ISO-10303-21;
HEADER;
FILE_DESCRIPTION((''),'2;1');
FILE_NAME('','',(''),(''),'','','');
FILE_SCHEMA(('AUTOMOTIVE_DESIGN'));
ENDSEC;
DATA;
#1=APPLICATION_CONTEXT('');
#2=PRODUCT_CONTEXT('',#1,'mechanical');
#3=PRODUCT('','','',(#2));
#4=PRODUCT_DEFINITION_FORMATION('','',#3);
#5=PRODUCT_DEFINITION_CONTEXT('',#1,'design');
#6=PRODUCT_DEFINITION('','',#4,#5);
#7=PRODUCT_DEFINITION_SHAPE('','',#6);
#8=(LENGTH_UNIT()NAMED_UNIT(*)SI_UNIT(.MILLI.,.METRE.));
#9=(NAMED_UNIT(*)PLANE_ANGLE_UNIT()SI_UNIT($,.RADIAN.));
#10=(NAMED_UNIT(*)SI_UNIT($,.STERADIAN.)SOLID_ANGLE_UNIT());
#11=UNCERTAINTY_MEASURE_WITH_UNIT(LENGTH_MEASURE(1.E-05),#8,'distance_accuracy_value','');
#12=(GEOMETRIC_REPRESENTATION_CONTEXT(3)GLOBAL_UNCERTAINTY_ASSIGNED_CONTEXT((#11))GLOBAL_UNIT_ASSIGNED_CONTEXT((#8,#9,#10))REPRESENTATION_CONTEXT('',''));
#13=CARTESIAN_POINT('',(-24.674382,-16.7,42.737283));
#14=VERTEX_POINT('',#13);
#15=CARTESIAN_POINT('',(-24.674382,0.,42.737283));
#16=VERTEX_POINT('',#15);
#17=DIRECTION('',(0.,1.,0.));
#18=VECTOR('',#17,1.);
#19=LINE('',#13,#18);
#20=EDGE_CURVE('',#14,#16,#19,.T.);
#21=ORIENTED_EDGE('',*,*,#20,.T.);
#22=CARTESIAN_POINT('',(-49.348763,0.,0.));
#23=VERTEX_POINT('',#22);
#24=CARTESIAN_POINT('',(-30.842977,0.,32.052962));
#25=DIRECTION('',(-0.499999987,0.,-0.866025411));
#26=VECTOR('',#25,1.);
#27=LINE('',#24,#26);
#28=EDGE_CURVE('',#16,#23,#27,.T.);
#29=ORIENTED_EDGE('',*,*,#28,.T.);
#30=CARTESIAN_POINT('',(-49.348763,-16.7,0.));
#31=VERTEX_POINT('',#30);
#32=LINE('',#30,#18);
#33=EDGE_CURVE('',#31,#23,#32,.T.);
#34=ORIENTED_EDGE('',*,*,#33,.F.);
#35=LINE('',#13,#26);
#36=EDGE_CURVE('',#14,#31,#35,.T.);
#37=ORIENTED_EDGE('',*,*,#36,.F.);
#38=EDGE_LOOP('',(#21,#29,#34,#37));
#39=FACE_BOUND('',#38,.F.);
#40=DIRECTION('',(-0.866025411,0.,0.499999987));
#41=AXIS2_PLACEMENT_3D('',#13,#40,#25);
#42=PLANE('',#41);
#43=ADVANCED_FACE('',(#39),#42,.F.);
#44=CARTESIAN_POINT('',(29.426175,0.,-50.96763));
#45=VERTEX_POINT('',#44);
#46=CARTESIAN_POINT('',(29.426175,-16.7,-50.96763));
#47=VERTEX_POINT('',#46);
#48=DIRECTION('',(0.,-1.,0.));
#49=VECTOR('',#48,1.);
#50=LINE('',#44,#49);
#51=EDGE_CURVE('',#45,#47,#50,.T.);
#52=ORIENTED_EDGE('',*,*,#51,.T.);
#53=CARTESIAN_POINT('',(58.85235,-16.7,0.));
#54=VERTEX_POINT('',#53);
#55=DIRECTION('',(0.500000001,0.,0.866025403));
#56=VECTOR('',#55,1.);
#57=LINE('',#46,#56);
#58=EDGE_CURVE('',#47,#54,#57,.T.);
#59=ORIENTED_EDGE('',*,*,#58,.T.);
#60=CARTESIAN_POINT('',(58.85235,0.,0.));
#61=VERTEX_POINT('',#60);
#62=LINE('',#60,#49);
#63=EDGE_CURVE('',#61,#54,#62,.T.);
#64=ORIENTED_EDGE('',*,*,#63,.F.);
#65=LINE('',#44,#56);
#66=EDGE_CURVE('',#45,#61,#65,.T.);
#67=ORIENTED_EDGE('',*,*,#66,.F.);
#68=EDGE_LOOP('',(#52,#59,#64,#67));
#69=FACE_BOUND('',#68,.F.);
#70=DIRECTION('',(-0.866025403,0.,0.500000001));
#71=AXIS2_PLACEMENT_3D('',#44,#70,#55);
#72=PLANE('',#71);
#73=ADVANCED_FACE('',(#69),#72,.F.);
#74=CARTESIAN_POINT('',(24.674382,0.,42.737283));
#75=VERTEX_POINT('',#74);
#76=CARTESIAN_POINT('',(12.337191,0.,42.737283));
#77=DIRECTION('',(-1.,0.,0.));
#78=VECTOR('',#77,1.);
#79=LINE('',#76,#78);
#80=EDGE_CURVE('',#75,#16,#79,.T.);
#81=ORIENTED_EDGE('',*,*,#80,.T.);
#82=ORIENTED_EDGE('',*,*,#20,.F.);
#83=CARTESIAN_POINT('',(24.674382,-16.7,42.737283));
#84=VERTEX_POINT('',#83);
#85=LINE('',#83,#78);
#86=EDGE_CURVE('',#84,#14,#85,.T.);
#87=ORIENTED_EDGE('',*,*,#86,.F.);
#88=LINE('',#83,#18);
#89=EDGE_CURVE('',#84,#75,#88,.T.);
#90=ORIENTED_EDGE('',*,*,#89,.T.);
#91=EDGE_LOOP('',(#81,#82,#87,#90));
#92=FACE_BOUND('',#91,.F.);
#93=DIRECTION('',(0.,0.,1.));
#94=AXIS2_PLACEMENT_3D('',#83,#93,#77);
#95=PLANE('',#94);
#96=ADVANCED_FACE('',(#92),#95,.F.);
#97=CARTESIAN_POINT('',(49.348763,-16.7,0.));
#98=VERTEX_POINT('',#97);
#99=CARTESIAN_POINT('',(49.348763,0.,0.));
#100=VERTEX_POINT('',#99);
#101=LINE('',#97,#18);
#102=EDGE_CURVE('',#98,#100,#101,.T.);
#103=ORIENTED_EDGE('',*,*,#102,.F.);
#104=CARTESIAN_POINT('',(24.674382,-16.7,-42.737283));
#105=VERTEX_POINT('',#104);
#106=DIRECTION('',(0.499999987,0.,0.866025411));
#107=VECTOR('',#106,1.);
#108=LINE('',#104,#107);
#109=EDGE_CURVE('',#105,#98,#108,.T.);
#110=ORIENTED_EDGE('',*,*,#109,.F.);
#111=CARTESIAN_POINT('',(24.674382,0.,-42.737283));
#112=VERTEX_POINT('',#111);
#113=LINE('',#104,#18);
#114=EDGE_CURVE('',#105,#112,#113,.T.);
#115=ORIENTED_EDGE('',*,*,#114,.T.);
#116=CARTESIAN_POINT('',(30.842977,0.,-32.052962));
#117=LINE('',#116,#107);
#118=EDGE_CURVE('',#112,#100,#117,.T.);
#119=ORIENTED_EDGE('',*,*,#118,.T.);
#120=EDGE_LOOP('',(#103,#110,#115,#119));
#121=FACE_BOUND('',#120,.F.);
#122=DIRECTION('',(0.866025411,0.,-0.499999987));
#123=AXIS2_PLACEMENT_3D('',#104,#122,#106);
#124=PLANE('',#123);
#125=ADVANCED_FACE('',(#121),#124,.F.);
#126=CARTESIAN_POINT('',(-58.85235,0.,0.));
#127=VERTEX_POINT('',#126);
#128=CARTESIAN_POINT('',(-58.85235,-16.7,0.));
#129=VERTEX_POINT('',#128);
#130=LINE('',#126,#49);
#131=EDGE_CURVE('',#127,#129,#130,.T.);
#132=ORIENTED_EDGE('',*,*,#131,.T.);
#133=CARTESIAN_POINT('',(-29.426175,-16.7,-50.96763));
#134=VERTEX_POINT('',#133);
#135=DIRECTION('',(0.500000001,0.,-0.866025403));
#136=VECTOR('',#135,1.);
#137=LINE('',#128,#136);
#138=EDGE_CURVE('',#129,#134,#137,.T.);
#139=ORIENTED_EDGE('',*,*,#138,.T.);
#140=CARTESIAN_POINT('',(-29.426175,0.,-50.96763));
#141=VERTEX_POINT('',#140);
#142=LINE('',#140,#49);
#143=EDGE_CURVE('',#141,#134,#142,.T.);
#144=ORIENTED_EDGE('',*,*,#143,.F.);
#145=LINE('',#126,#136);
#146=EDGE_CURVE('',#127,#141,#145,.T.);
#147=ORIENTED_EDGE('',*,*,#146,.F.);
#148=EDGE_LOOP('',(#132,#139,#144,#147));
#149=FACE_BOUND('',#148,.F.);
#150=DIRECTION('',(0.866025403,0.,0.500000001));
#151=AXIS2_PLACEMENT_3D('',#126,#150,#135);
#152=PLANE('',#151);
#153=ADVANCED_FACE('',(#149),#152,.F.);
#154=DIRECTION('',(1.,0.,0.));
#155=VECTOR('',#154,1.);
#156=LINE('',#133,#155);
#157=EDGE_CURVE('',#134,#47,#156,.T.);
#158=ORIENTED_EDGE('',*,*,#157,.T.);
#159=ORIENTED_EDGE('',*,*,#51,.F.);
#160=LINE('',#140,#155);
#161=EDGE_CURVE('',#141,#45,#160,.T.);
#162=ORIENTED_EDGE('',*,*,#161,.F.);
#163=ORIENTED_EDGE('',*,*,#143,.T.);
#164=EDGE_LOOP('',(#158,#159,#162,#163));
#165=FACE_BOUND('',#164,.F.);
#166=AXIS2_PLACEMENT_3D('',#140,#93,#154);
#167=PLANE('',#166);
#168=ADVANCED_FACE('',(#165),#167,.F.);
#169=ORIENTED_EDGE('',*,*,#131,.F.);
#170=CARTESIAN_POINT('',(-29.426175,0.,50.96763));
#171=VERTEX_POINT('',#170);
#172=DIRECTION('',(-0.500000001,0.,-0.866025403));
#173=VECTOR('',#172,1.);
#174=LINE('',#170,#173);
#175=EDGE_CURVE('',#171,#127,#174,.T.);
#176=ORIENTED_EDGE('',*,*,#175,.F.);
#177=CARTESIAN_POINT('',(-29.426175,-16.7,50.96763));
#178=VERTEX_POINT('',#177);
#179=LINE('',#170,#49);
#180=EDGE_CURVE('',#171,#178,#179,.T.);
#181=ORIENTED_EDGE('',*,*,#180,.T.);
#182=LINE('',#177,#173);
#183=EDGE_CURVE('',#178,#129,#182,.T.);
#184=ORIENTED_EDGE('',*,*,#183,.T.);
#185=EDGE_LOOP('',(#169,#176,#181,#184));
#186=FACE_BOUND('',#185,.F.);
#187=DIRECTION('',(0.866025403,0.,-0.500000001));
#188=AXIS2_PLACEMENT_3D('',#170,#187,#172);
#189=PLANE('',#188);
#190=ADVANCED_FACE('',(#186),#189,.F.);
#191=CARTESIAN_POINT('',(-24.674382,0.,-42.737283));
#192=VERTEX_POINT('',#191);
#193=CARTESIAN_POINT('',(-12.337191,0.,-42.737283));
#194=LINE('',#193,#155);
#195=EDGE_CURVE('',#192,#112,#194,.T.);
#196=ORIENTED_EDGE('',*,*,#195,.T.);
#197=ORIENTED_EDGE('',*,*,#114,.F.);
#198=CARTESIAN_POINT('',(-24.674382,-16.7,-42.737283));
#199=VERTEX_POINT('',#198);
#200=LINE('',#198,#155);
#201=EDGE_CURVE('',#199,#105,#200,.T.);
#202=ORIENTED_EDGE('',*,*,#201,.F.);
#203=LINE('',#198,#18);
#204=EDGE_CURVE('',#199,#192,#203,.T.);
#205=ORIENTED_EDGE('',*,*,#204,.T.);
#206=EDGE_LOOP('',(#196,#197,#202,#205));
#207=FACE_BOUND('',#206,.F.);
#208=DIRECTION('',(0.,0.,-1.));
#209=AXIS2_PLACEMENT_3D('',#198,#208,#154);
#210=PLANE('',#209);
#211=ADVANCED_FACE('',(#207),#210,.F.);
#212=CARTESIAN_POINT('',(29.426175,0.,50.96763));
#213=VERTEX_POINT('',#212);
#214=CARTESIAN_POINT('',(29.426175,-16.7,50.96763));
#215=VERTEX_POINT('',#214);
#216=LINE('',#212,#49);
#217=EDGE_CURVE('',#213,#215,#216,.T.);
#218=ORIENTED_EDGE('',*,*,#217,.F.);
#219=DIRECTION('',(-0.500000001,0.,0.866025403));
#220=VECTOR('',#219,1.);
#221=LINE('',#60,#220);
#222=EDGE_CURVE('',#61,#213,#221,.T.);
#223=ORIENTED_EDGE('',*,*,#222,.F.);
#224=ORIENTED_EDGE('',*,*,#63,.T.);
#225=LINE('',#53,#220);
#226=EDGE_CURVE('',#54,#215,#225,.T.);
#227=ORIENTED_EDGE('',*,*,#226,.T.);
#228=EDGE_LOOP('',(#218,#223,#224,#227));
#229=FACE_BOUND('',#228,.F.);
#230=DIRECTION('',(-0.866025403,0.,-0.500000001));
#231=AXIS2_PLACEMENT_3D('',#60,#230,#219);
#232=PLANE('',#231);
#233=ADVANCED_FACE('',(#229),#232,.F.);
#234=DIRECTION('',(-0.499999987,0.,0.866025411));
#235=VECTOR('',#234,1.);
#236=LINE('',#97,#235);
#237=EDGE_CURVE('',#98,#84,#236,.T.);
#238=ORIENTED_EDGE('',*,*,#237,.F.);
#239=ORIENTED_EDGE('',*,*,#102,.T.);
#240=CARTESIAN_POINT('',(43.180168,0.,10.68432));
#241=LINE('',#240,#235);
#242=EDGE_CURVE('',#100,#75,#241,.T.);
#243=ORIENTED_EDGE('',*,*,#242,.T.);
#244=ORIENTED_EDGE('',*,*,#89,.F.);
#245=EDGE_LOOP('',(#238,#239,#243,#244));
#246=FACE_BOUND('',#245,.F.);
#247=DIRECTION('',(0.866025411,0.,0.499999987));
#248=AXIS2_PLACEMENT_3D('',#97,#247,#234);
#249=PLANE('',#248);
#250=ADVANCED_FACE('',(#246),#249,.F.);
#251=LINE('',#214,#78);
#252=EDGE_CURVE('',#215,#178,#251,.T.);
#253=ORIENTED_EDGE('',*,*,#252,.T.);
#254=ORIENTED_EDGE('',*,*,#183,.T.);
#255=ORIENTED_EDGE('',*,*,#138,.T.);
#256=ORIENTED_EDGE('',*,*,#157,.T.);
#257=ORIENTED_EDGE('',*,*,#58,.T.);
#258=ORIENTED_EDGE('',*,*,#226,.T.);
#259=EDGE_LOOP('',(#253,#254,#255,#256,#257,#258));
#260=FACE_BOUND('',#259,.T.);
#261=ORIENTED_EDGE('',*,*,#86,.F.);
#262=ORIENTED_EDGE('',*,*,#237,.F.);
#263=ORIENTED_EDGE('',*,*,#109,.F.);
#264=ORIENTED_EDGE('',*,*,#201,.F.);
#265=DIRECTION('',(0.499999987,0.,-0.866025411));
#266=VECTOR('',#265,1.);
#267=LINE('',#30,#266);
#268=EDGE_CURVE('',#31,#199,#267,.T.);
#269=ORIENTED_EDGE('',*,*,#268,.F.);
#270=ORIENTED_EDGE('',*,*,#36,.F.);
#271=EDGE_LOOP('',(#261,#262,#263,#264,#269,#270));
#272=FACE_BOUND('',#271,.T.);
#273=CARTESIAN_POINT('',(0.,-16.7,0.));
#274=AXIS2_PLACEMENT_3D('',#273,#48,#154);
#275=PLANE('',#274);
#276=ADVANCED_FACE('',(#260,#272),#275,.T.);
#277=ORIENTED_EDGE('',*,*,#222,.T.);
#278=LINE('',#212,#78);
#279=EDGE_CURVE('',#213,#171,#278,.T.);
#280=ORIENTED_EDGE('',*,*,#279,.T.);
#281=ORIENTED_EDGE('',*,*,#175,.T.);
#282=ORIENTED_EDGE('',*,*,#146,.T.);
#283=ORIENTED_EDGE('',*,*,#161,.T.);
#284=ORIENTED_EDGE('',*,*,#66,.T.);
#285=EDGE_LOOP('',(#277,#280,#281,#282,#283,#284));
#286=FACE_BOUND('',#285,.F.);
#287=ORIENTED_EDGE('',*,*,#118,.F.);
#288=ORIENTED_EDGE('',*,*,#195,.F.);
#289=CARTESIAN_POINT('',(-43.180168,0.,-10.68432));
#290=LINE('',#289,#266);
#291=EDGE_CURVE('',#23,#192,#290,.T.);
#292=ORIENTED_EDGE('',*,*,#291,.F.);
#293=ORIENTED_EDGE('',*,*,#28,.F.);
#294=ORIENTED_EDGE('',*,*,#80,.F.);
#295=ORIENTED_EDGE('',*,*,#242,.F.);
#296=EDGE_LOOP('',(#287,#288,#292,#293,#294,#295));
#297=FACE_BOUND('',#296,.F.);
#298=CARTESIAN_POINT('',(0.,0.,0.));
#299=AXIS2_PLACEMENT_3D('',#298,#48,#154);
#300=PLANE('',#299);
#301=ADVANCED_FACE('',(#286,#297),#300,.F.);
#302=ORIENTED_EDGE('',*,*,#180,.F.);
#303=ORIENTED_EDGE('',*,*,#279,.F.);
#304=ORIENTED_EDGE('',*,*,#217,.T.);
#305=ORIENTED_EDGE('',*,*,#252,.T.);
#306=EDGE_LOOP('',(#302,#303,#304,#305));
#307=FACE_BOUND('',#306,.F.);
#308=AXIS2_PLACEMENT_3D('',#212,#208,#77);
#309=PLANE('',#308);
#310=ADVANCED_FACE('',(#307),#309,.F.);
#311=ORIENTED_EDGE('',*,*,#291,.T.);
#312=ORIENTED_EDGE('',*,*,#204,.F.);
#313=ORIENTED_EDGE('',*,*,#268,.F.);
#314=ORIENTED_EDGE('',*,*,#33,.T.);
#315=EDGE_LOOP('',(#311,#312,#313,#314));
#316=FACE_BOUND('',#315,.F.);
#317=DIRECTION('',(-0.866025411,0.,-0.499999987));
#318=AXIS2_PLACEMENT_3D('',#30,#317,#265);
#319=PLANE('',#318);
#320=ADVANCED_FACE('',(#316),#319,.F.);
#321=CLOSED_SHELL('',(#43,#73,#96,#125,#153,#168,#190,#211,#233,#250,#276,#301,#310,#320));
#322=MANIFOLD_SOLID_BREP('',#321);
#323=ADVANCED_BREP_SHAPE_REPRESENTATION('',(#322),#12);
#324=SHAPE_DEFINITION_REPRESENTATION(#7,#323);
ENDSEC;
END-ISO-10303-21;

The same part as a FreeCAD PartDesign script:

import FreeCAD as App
import Part
import Sketcher
Q = App.Units.Quantity


def add_polygon(sketch, points):
    """Adds a closed chain of lines whose ends are joined by coincident constraints."""
    first, n = sketch.GeometryCount, len(points)
    for a, b in zip(points, points[1:] + points[:1]):
        sketch.addGeometry(Part.LineSegment(App.Vector(*a, 0), App.Vector(*b, 0)), False)
    for i in range(n):
        sketch.addConstraint(Sketcher.Constraint("Coincident", first + i, 2, first + (i + 1) % n, 1))

doc = App.newDocument("Part")
body = doc.addObject("PartDesign::Body", "Body")

# Sketch on XZ plane
sketch1 = body.newObject("Sketcher::SketchObject", "Sketch")
sketch1.AttachmentSupport = (doc.getObject("XZ_Plane"), [""])
sketch1.MapMode = "FlatFace"
add_polygon(sketch1, [(58.85235, 0), (29.426175, 50.96763), (-29.426175, 50.96763), (-58.85235, 0), (-29.426175, -50.96763), (29.426175, -50.96763)])  # lines 0-5
sketch1.addConstraint(Sketcher.Constraint("Horizontal", 1))
sketch1.addConstraint(Sketcher.Constraint("Horizontal", 4))
sketch1.addConstraint(Sketcher.Constraint("Symmetric", 0, 2, 3, 2, -1, 1))
sketch1.addConstraint(Sketcher.Constraint("Symmetric", 2, 2, 5, 2, -1, 1))
sketch1.addConstraint(Sketcher.Constraint("PointOnObject", 2, 2, -1))
sketch1.addConstraint(Sketcher.Constraint("Parallel", 2, 5))
sketch1.addConstraint(Sketcher.Constraint("Vertical", 1, 2, 3, 2))
sketch1.addConstraint(Sketcher.Constraint("Angle", 0, Q("120 deg")))
sketch1.addConstraint(Sketcher.Constraint("DistanceX", 1, 2, 1, 1, 58.85235))
sketch1.addConstraint(Sketcher.Constraint("DistanceX", 2, 2, 5, 2, 117.7047))
pad1 = body.newObject("PartDesign::Pad", "Pad")
pad1.Profile = sketch1
pad1.Length = 16.7

# Sketch on XZ plane
sketch2 = body.newObject("Sketcher::SketchObject", "Sketch001")
sketch2.AttachmentSupport = (doc.getObject("XZ_Plane"), [""])
sketch2.MapMode = "FlatFace"
sketch2.AttachmentOffset = App.Placement(App.Vector(0, 0, 16.7), App.Rotation())
add_polygon(sketch2, [(24.674382, 42.737283), (-24.674382, 42.737283), (-49.348763, 0), (-24.674382, -42.737283), (24.674382, -42.737283), (49.348763, 0)])  # lines 0-5
sketch2.addConstraint(Sketcher.Constraint("Horizontal", 0))
sketch2.addConstraint(Sketcher.Constraint("Horizontal", 3))
sketch2.addConstraint(Sketcher.Constraint("Symmetric", 0, 2, 3, 2, -1, 1))
sketch2.addConstraint(Sketcher.Constraint("Symmetric", 1, 2, 4, 2, -1, 1))
sketch2.addConstraint(Sketcher.Constraint("PointOnObject", 1, 2, -1))
sketch2.addConstraint(Sketcher.Constraint("Parallel", 2, 5))
sketch2.addConstraint(Sketcher.Constraint("Vertical", 0, 2, 2, 2))
sketch2.addConstraint(Sketcher.Constraint("Angle", 1, Q("-119.999999 deg")))
sketch2.addConstraint(Sketcher.Constraint("DistanceX", 0, 2, 0, 1, 49.348764))
sketch2.addConstraint(Sketcher.Constraint("DistanceX", 1, 2, 0, 2, 24.674381))
pocket1 = body.newObject("PartDesign::Pocket", "Pocket")
pocket1.Profile = sketch2
pocket1.Length = 47.6

doc.recompute()
